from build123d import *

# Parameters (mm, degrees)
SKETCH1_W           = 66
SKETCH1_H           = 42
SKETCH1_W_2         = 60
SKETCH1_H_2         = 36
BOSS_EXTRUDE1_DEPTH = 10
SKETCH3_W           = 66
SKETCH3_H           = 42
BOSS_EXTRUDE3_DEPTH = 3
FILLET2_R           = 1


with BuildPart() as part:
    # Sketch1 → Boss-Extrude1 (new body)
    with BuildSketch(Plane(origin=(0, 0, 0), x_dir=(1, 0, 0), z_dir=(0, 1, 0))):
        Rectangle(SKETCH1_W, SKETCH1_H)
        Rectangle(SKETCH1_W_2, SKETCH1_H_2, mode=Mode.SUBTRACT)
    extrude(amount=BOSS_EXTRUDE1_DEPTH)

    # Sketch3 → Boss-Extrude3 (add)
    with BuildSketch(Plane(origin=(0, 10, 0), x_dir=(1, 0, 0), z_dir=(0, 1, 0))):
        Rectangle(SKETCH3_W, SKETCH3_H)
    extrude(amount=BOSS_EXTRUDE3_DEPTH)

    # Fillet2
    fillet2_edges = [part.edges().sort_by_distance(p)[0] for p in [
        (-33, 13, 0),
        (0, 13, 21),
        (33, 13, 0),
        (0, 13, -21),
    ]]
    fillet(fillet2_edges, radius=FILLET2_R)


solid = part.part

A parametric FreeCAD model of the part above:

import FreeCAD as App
import Part
import Sketcher

V = App.Vector


def edges_at(feature, points):
    """Names of the edges that pass closest to the given points."""
    edges = feature.Shape.Edges
    near = lambda p: min(range(len(edges)), key=lambda i: edges[i].distToShape(Part.Vertex(*p))[0])
    return sorted({f"Edge{near(p) + 1}" for p in points})

doc = App.newDocument("Part")
body = doc.addObject("PartDesign::Body", "Body")

sketch1 = doc.addObject("Sketcher::SketchObject", "Sketch")
body.addObject(sketch1)
sketch1.AttachmentSupport = (doc.XZ_Plane, [""])
sketch1.MapMode = "FlatFace"
sketch1.addGeometry([
    Part.LineSegment(V(-33, -21, 0), V(-33, 21, 0)),
    Part.LineSegment(V(-33, 21, 0), V(33, 21, 0)),
    Part.LineSegment(V(33, 21, 0), V(33, -21, 0)),
    Part.LineSegment(V(33, -21, 0), V(-33, -21, 0)),
    Part.LineSegment(V(30, 18, 0), V(-30, 18, 0)),
    Part.LineSegment(V(-30, 18, 0), V(-30, -18, 0)),
    Part.LineSegment(V(-30, -18, 0), V(30, -18, 0)),
    Part.LineSegment(V(30, -18, 0), V(30, 18, 0)),
], False)
sketch1.addConstraint([
    Sketcher.Constraint("Coincident", 0, 2, 1, 1),
    Sketcher.Constraint("Coincident", 1, 2, 2, 1),
    Sketcher.Constraint("Coincident", 2, 2, 3, 1),
    Sketcher.Constraint("Coincident", 3, 2, 0, 1),
    Sketcher.Constraint("Coincident", 4, 2, 5, 1),
    Sketcher.Constraint("Coincident", 5, 2, 6, 1),
    Sketcher.Constraint("Coincident", 6, 2, 7, 1),
    Sketcher.Constraint("Coincident", 7, 2, 4, 1),
    Sketcher.Constraint("Vertical", 0),
    Sketcher.Constraint("Horizontal", 1),
    Sketcher.Constraint("Vertical", 2),
    Sketcher.Constraint("Horizontal", 3),
    Sketcher.Constraint("Horizontal", 4),
    Sketcher.Constraint("Vertical", 5),
    Sketcher.Constraint("Horizontal", 6),
    Sketcher.Constraint("Vertical", 7),
    Sketcher.Constraint("Symmetric", 0, 2, 2, 2, -1, 1),
    Sketcher.Constraint("Symmetric", 4, 2, 6, 2, -1, 1),
    Sketcher.Constraint("DistanceX", 1, 1, 1, 2, 66.0),
    Sketcher.Constraint("DistanceX", 4, 2, 4, 1, 60.0),
    Sketcher.Constraint("DistanceY", 0, 1, 0, 2, 42.0),
    Sketcher.Constraint("DistanceY", 5, 2, 5, 1, 36.0),
])
pad1 = doc.addObject("PartDesign::Pad", "Pad")
body.addObject(pad1)
pad1.Profile = sketch1
pad1.Length = 10
pad1.Reversed = True

sketch2 = doc.addObject("Sketcher::SketchObject", "Sketch001")
body.addObject(sketch2)
sketch2.AttachmentSupport = (doc.XZ_Plane, [""])
sketch2.MapMode = "FlatFace"
sketch2.AttachmentOffset = App.Placement(V(0, 0, -10), App.Rotation())
sketch2.addGeometry([
    Part.LineSegment(V(-33, -21, 0), V(-33, 21, 0)),
    Part.LineSegment(V(-33, 21, 0), V(33, 21, 0)),
    Part.LineSegment(V(33, 21, 0), V(33, -21, 0)),
    Part.LineSegment(V(33, -21, 0), V(-33, -21, 0)),
], False)
sketch2.addConstraint([
    Sketcher.Constraint("Coincident", 0, 2, 1, 1),
    Sketcher.Constraint("Coincident", 1, 2, 2, 1),
    Sketcher.Constraint("Coincident", 2, 2, 3, 1),
    Sketcher.Constraint("Coincident", 3, 2, 0, 1),
    Sketcher.Constraint("Vertical", 0),
    Sketcher.Constraint("Horizontal", 1),
    Sketcher.Constraint("Vertical", 2),
    Sketcher.Constraint("Horizontal", 3),
    Sketcher.Constraint("Symmetric", 0, 2, 2, 2, -1, 1),
    Sketcher.Constraint("DistanceX", 1, 1, 1, 2, 66.0),
    Sketcher.Constraint("DistanceY", 0, 1, 0, 2, 42.0),
])
pad2 = doc.addObject("PartDesign::Pad", "Pad001")
body.addObject(pad2)
pad2.Profile = sketch2
pad2.Length = 3
pad2.Reversed = True
doc.recompute()

fillet = doc.addObject("PartDesign::Fillet", "Fillet")
body.addObject(fillet)
fillet.Base = (pad2, edges_at(pad2, [
    (-33, 13, 0),
    (0, 13, 21),
    (33, 13, 0),
    (0, 13, -21),
]))
fillet.Radius = 1

doc.recompute()
